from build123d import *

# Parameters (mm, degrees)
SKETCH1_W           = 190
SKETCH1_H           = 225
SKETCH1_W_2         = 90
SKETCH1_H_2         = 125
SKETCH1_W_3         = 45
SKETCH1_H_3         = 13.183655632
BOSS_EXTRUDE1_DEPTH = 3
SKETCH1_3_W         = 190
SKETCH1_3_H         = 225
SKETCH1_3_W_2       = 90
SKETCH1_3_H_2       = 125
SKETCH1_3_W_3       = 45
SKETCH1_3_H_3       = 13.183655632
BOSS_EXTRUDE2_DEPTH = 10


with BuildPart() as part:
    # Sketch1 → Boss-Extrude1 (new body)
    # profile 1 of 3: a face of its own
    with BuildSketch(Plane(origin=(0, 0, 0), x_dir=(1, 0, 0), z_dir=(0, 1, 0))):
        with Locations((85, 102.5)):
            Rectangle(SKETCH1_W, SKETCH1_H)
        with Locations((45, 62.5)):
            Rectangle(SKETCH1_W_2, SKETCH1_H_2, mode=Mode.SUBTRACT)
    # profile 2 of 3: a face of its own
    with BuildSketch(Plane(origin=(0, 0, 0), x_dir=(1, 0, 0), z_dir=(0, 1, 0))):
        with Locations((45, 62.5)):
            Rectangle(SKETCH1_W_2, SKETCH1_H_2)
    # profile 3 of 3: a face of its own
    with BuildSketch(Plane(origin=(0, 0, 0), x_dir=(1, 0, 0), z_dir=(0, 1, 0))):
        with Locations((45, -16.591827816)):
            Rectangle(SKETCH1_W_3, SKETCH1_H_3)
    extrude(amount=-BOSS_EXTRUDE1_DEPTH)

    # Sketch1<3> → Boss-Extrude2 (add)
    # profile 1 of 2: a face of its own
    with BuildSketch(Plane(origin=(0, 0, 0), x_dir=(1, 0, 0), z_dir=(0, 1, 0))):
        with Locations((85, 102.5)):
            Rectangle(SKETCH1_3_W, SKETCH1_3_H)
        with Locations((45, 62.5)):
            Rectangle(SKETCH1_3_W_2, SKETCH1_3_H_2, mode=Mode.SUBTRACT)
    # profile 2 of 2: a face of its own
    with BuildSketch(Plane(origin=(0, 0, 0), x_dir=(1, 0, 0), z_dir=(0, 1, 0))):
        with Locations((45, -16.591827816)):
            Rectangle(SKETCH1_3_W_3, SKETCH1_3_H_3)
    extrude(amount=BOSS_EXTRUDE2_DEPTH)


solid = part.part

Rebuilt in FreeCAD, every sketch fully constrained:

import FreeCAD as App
import Part
import Sketcher
from FreeCAD import Vector

doc = App.newDocument("Part")
body = doc.addObject("PartDesign::Body", "Body")

# Sketch on XZ plane
sketch1 = body.newObject("Sketcher::SketchObject", "Sketch")
sketch1.AttachmentSupport = (doc.getObject("XZ_Plane"), [""])
sketch1.MapMode = "FlatFace"
sketch1.addGeometry(Part.LineSegment(Vector(-10, -215, 0), Vector(-10, 10, 0)), False)
sketch1.addGeometry(Part.LineSegment(Vector(-10, 10, 0), Vector(22, 10, 0)), False)
sketch1.addGeometry(Part.LineSegment(Vector(22, 10, 0), Vector(22, 23, 0)), False)
sketch1.addGeometry(Part.LineSegment(Vector(22, 23, 0), Vector(68, 23, 0)), False)
sketch1.addGeometry(Part.LineSegment(Vector(68, 23, 0), Vector(68, 10, 0)), False)
sketch1.addGeometry(Part.LineSegment(Vector(68, 10, 0), Vector(180, 10, 0)), False)
sketch1.addGeometry(Part.LineSegment(Vector(180, 10, 0), Vector(180, -215, 0)), False)
sketch1.addGeometry(Part.LineSegment(Vector(180, -215, 0), Vector(-10, -215, 0)), False)
sketch1.addConstraint(Sketcher.Constraint("Coincident", 0, 2, 1, 1))
sketch1.addConstraint(Sketcher.Constraint("Coincident", 1, 2, 2, 1))
sketch1.addConstraint(Sketcher.Constraint("Coincident", 2, 2, 3, 1))
sketch1.addConstraint(Sketcher.Constraint("Coincident", 3, 2, 4, 1))
sketch1.addConstraint(Sketcher.Constraint("Coincident", 4, 2, 5, 1))
sketch1.addConstraint(Sketcher.Constraint("Coincident", 5, 2, 6, 1))
sketch1.addConstraint(Sketcher.Constraint("Coincident", 6, 2, 7, 1))
sketch1.addConstraint(Sketcher.Constraint("Coincident", 7, 2, 0, 1))
sketch1.addConstraint(Sketcher.Constraint("Vertical", 0))
sketch1.addConstraint(Sketcher.Constraint("Horizontal", 1))
sketch1.addConstraint(Sketcher.Constraint("Vertical", 2))
sketch1.addConstraint(Sketcher.Constraint("Horizontal", 3))
sketch1.addConstraint(Sketcher.Constraint("Vertical", 4))
sketch1.addConstraint(Sketcher.Constraint("Horizontal", 5))
sketch1.addConstraint(Sketcher.Constraint("Vertical", 6))
sketch1.addConstraint(Sketcher.Constraint("Horizontal", 7))
sketch1.addConstraint(Sketcher.Constraint("Horizontal", 1, 2, 4, 2))
sketch1.addConstraint(Sketcher.Constraint("DistanceX", 3, 1, 3, 2, 45.0))
sketch1.addConstraint(Sketcher.Constraint("DistanceX", 7, 2, 7, 1, 190.0))
sketch1.addConstraint(Sketcher.Constraint("DistanceY", 0, 1, 0, 2, 225.0))
sketch1.addConstraint(Sketcher.Constraint("DistanceX", 1, 1, 1, 2, 32.5))
sketch1.addConstraint(Sketcher.Constraint("DistanceX", 0, 2, -1, 1, 10.0))
sketch1.addConstraint(Sketcher.Constraint("DistanceY", -1, 1, 0, 2, 10.0))
sketch1.addConstraint(Sketcher.Constraint("DistanceY", 2, 1, 2, 2, 13.183656))
pad1 = body.newObject("PartDesign::Pad", "Pad")
pad1.Profile = sketch1
pad1.Length = 3

# Sketch on XZ plane
sketch2 = body.newObject("Sketcher::SketchObject", "Sketch001")
sketch2.AttachmentSupport = (doc.getObject("XZ_Plane"), [""])
sketch2.MapMode = "FlatFace"
sketch2.addGeometry(Part.LineSegment(Vector(-10, -215, 0), Vector(-10, 10, 0)), False)
sketch2.addGeometry(Part.LineSegment(Vector(-10, 10, 0), Vector(22, 10, 0)), False)
sketch2.addGeometry(Part.LineSegment(Vector(22, 10, 0), Vector(22, 23, 0)), False)
sketch2.addGeometry(Part.LineSegment(Vector(22, 23, 0), Vector(68, 23, 0)), False)
sketch2.addGeometry(Part.LineSegment(Vector(68, 23, 0), Vector(68, 10, 0)), False)
sketch2.addGeometry(Part.LineSegment(Vector(68, 10, 0), Vector(180, 10, 0)), False)
sketch2.addGeometry(Part.LineSegment(Vector(180, 10, 0), Vector(180, -215, 0)), False)
sketch2.addGeometry(Part.LineSegment(Vector(180, -215, 0), Vector(-10, -215, 0)), False)
sketch2.addGeometry(Part.LineSegment(Vector(90, 0, 0), Vector(0, 0, 0)), False)
sketch2.addGeometry(Part.LineSegment(Vector(0, 0, 0), Vector(0, -125, 0)), False)
sketch2.addGeometry(Part.LineSegment(Vector(0, -125, 0), Vector(90, -125, 0)), False)
sketch2.addGeometry(Part.LineSegment(Vector(90, -125, 0), Vector(90, 0, 0)), False)
sketch2.addConstraint(Sketcher.Constraint("Coincident", 0, 2, 1, 1))
sketch2.addConstraint(Sketcher.Constraint("Coincident", 1, 2, 2, 1))
sketch2.addConstraint(Sketcher.Constraint("Coincident", 2, 2, 3, 1))
sketch2.addConstraint(Sketcher.Constraint("Coincident", 3, 2, 4, 1))
sketch2.addConstraint(Sketcher.Constraint("Coincident", 4, 2, 5, 1))
sketch2.addConstraint(Sketcher.Constraint("Coincident", 5, 2, 6, 1))
sketch2.addConstraint(Sketcher.Constraint("Coincident", 6, 2, 7, 1))
sketch2.addConstraint(Sketcher.Constraint("Coincident", 7, 2, 0, 1))
sketch2.addConstraint(Sketcher.Constraint("Coincident", 8, 2, 9, 1))
sketch2.addConstraint(Sketcher.Constraint("Coincident", 9, 2, 10, 1))
sketch2.addConstraint(Sketcher.Constraint("Coincident", 10, 2, 11, 1))
sketch2.addConstraint(Sketcher.Constraint("Coincident", 11, 2, 8, 1))
sketch2.addConstraint(Sketcher.Constraint("Vertical", 0))
sketch2.addConstraint(Sketcher.Constraint("Horizontal", 1))
sketch2.addConstraint(Sketcher.Constraint("Vertical", 2))
sketch2.addConstraint(Sketcher.Constraint("Horizontal", 3))
sketch2.addConstraint(Sketcher.Constraint("Vertical", 4))
sketch2.addConstraint(Sketcher.Constraint("Horizontal", 5))
sketch2.addConstraint(Sketcher.Constraint("Vertical", 6))
sketch2.addConstraint(Sketcher.Constraint("Horizontal", 7))
sketch2.addConstraint(Sketcher.Constraint("Horizontal", 8))
sketch2.addConstraint(Sketcher.Constraint("Vertical", 9))
sketch2.addConstraint(Sketcher.Constraint("Horizontal", 10))
sketch2.addConstraint(Sketcher.Constraint("Vertical", 11))
sketch2.addConstraint(Sketcher.Constraint("Coincident", 8, 2, -1, 1))
sketch2.addConstraint(Sketcher.Constraint("Horizontal", 1, 2, 4, 2))
sketch2.addConstraint(Sketcher.Constraint("DistanceX", 3, 1, 3, 2, 45.0))
sketch2.addConstraint(Sketcher.Constraint("DistanceX", 7, 2, 7, 1, 190.0))
sketch2.addConstraint(Sketcher.Constraint("DistanceX", 8, 2, 8, 1, 90.0))
sketch2.addConstraint(Sketcher.Constraint("DistanceY", 0, 1, 0, 2, 225.0))
sketch2.addConstraint(Sketcher.Constraint("DistanceY", 9, 2, 9, 1, 125.0))
sketch2.addConstraint(Sketcher.Constraint("DistanceX", 1, 1, 1, 2, 32.5))
sketch2.addConstraint(Sketcher.Constraint("DistanceX", 0, 2, -1, 1, 10.0))
sketch2.addConstraint(Sketcher.Constraint("DistanceY", -1, 1, 0, 2, 10.0))
sketch2.addConstraint(Sketcher.Constraint("DistanceY", 2, 1, 2, 2, 13.183656))
pad2 = body.newObject("PartDesign::Pad", "Pad001")
pad2.Profile = sketch2
pad2.Length = 10
pad2.Reversed = True

doc.recompute()
